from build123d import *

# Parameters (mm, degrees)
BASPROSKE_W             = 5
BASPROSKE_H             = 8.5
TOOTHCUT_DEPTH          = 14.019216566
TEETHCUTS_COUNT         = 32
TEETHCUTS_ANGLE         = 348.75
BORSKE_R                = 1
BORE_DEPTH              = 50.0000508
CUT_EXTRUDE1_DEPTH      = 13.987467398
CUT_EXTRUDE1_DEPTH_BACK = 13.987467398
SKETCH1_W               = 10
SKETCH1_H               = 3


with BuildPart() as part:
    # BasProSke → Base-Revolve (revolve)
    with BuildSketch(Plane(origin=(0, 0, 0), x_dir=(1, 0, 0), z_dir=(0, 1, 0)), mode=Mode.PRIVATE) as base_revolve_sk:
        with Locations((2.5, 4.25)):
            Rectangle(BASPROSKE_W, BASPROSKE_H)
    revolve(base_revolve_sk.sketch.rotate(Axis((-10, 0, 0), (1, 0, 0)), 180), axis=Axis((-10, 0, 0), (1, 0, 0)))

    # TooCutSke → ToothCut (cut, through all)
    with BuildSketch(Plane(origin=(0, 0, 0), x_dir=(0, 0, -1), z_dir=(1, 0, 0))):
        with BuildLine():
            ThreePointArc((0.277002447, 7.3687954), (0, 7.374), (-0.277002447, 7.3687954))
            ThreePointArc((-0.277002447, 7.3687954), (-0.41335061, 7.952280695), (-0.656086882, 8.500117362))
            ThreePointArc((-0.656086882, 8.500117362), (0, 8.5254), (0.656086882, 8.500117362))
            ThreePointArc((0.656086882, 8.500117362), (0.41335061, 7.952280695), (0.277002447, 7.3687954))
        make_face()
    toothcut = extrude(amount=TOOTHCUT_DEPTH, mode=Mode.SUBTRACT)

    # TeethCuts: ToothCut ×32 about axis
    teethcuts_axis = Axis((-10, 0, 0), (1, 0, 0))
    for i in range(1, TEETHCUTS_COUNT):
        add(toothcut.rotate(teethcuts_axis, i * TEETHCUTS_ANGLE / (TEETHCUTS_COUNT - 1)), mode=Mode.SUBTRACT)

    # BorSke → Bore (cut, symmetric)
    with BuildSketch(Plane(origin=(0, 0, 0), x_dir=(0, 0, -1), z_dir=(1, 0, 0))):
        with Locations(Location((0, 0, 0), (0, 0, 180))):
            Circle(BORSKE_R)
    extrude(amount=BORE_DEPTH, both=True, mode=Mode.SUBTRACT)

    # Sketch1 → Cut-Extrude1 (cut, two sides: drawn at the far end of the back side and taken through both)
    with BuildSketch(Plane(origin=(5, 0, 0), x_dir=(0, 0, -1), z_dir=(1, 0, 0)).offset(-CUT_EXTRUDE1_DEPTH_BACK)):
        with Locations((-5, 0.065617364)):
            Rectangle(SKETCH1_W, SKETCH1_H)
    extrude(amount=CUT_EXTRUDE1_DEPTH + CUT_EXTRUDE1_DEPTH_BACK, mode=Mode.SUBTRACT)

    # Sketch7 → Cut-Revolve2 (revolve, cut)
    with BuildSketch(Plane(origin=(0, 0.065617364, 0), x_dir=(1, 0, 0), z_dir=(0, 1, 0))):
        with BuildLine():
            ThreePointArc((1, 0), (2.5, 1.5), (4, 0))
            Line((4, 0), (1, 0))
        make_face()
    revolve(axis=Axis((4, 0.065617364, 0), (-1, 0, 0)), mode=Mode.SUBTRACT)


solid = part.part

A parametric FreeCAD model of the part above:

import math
import FreeCAD as App
import Part
import Sketcher

V = App.Vector


def add_polygon(sketch, points):
    """Adds a closed chain of lines whose ends are joined by coincident constraints."""
    first, n = sketch.GeometryCount, len(points)
    for a, b in zip(points, points[1:] + points[:1]):
        sketch.addGeometry(Part.LineSegment(App.Vector(*a, 0), App.Vector(*b, 0)), False)
    for i in range(n):
        sketch.addConstraint(Sketcher.Constraint("Coincident", first + i, 2, first + (i + 1) % n, 1))

doc = App.newDocument("Part")
body = doc.addObject("PartDesign::Body", "Body")

# Sketch on XZ plane
sketch1 = body.newObject("Sketcher::SketchObject", "Sketch")
sketch1.AttachmentSupport = (doc.getObject("XZ_Plane"), [""])
sketch1.MapMode = "FlatFace"
add_polygon(sketch1, [(0, -8), (0, 0), (5, 0), (5, -8)])  # lines 0-3
sketch1.addConstraint(Sketcher.Constraint("Vertical", 0))
sketch1.addConstraint(Sketcher.Constraint("Horizontal", 1))
sketch1.addConstraint(Sketcher.Constraint("Vertical", 2))
sketch1.addConstraint(Sketcher.Constraint("Horizontal", 3))
sketch1.addConstraint(Sketcher.Constraint("Coincident", 0, 2, -1, 1))
sketch1.addConstraint(Sketcher.Constraint("DistanceX", 1, 1, 1, 2, 5.0))
sketch1.addConstraint(Sketcher.Constraint("DistanceY", 0, 1, 0, 2, 8.5))
revolution = body.newObject("PartDesign::Revolution", "Revolution")
revolution.Profile = sketch1
revolution.ReferenceAxis = (sketch1, ["H_Axis"])
revolution.Angle = 360

# Sketch on YZ plane
sketch2 = body.newObject("Sketcher::SketchObject", "Sketch001")
sketch2.AttachmentSupport = (doc.getObject("YZ_Plane"), [""])
sketch2.MapMode = "FlatFace"
sketch2.addGeometry(Part.ArcOfCircle(Part.Circle(V(0, 0, 0), V(0, 0, 1), 7.4), math.radians(-2.15), math.radians(2.15)), False)
sketch2.addGeometry(Part.ArcOfCircle(Part.Circle(V(6.9, -3.4, 0), V(0, 0, 1), 3.2), math.radians(61), math.radians(82)), False)
sketch2.addGeometry(Part.ArcOfCircle(Part.Circle(V(0, 0, 0), V(0, 0, 1), 8.5), math.radians(-4.41), math.radians(4.41)), False)
sketch2.addGeometry(Part.ArcOfCircle(Part.Circle(V(6.9, 3.4, 0), V(0, 0, 1), 3.2), math.radians(-82), math.radians(-61)), False)
sketch2.addConstraint(Sketcher.Constraint("Coincident", 0, 1, 1, 2))
sketch2.addConstraint(Sketcher.Constraint("Coincident", 1, 1, 2, 1))
sketch2.addConstraint(Sketcher.Constraint("Coincident", 2, 2, 3, 2))
sketch2.addConstraint(Sketcher.Constraint("Coincident", 3, 1, 0, 2))
sketch2.addConstraint(Sketcher.Constraint("Coincident", 0, 3, -1, 1))
sketch2.addConstraint(Sketcher.Constraint("Coincident", 2, 3, -1, 1))
sketch2.addConstraint(Sketcher.Constraint("Equal", 1, 3))
sketch2.addConstraint(Sketcher.Constraint("Symmetric", 1, 3, 3, 3, -1))
sketch2.addConstraint(Sketcher.Constraint("Radius", 1, 3.2))
sketch2.addConstraint(Sketcher.Constraint("Radius", 0, 7.374))
sketch2.addConstraint(Sketcher.Constraint("Radius", 2, 8.5254))
sketch2.addConstraint(Sketcher.Constraint("DistanceX", -1, 1, 1, 3, 6.935581))
sketch2.addConstraint(Sketcher.Constraint("DistanceX", 0, 1, 1, 1, 1.131322))
pocket1 = body.newObject("PartDesign::Pocket", "Pocket")
pocket1.Profile = sketch2
pocket1.Type = "ThroughAll"
pocket1.Reversed = True
doc.recompute()

polarpattern = body.newObject("PartDesign::PolarPattern", "PolarPattern")
polarpattern.Originals = [pocket1]
polarpattern.Axis = (doc.getObject("X_Axis"), [""])
polarpattern.Angle = 360
polarpattern.Occurrences = 32
body.Tip = polarpattern

# Sketch on YZ plane
sketch3 = body.newObject("Sketcher::SketchObject", "Sketch002")
sketch3.AttachmentSupport = (doc.getObject("YZ_Plane"), [""])
sketch3.MapMode = "FlatFace"
sketch3.addGeometry(Part.Circle(V(0, 0, 0), V(0, 0, 1), 1), False)
sketch3.addConstraint(Sketcher.Constraint("Coincident", 0, 3, -1, 1))
sketch3.addConstraint(Sketcher.Constraint("Diameter", 0, 2.0))
pocket2 = body.newObject("PartDesign::Pocket", "Pocket001")
pocket2.Profile = sketch3
pocket2.Length = 100.000102
pocket2.Midplane = True

# Sketch on YZ plane
sketch4 = body.newObject("Sketcher::SketchObject", "Sketch003")
sketch4.AttachmentSupport = (doc.getObject("YZ_Plane"), [""])
sketch4.MapMode = "FlatFace"
sketch4.AttachmentOffset = App.Placement(V(0, 0, 5), App.Rotation())
add_polygon(sketch4, [(1.6, 10), (-1.4, 10), (-1.4, 0), (1.6, 0)])  # lines 0-3
sketch4.addConstraint(Sketcher.Constraint("Horizontal", 0))
sketch4.addConstraint(Sketcher.Constraint("Vertical", 1))
sketch4.addConstraint(Sketcher.Constraint("Horizontal", 2))
sketch4.addConstraint(Sketcher.Constraint("Vertical", 3))
sketch4.addConstraint(Sketcher.Constraint("PointOnObject", 1, 2, -1))
sketch4.addConstraint(Sketcher.Constraint("DistanceX", 0, 2, 0, 1, 3.0))
sketch4.addConstraint(Sketcher.Constraint("DistanceY", 1, 2, 1, 1, 10.0))
sketch4.addConstraint(Sketcher.Constraint("DistanceX", 0, 2, -1, 1, 1.434383))
pocket3 = body.newObject("PartDesign::Pocket", "Pocket002")
pocket3.Profile = sketch4
pocket3.Type = "ThroughAll"
pocket3.Midplane = True

# Sketch on XZ plane
sketch5 = body.newObject("Sketcher::SketchObject", "Sketch004")
sketch5.AttachmentSupport = (doc.getObject("XZ_Plane"), [""])
sketch5.MapMode = "FlatFace"
sketch5.AttachmentOffset = App.Placement(V(0, 0, -0.065617), App.Rotation())
sketch5.addGeometry(Part.ArcOfCircle(Part.Circle(V(2.5, 0, 0), V(0, 0, 1), 1.5), math.radians(180), math.radians(360)), False)
sketch5.addGeometry(Part.LineSegment(V(1, 0, 0), V(4, 0, 0)), False)
sketch5.addConstraint(Sketcher.Constraint("Coincident", 0, 1, 1, 1))
sketch5.addConstraint(Sketcher.Constraint("Coincident", 1, 2, 0, 2))
sketch5.addConstraint(Sketcher.Constraint("Horizontal", 1))
sketch5.addConstraint(Sketcher.Constraint("PointOnObject", 0, 3, -1))
sketch5.addConstraint(Sketcher.Constraint("PointOnObject", 0, 1, -1))
sketch5.addConstraint(Sketcher.Constraint("Radius", 0, 1.5))
sketch5.addConstraint(Sketcher.Constraint("DistanceX", -1, 1, 0, 1, 1.0))
groove = body.newObject("PartDesign::Groove", "Groove")
groove.Profile = sketch5
groove.ReferenceAxis = (sketch5, ["H_Axis"])
groove.Angle = 360

doc.recompute()
